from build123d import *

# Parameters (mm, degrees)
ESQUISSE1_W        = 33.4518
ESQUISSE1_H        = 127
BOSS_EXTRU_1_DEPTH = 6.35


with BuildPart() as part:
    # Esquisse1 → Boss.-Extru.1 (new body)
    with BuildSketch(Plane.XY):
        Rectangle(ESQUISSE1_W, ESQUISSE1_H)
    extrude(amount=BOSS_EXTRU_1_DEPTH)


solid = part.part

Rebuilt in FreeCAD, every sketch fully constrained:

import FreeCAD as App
import Part
import Sketcher
Q = App.Units.Quantity


def add_polygon(sketch, points):
    """Adds a closed chain of lines whose ends are joined by coincident constraints."""
    first, n = sketch.GeometryCount, len(points)
    for a, b in zip(points, points[1:] + points[:1]):
        sketch.addGeometry(Part.LineSegment(App.Vector(*a, 0), App.Vector(*b, 0)), False)
    for i in range(n):
        sketch.addConstraint(Sketcher.Constraint("Coincident", first + i, 2, first + (i + 1) % n, 1))

doc = App.newDocument("Part")
params = doc.addObject("Spreadsheet::Sheet", "Params")
for row, (alias, value) in enumerate([
    ("sketch1_height", "5 in"),
    ("sketch1_width", "1.317 in"),
    ("pad1_length", "0.25 in"),
], start=1):
    params.set(f"A{row}", alias)
    params.set(f"B{row}", "=" + value)
    params.setAlias(f"B{row}", alias)

body = doc.addObject("PartDesign::Body", "Body")

# Sketch on XY plane
sketch1 = body.newObject("Sketcher::SketchObject", "Sketch")
sketch1.AttachmentSupport = (doc.getObject("XY_Plane"), [""])
sketch1.MapMode = "FlatFace"
add_polygon(sketch1, [(-17, 64), (-17, -64), (17, -64), (17, 64)])  # lines 0-3
sketch1.addConstraint([
    Sketcher.Constraint("Vertical", 0),
    Sketcher.Constraint("Horizontal", 1),
    Sketcher.Constraint("Vertical", 2),
    Sketcher.Constraint("Horizontal", 3),
    Sketcher.Constraint("Symmetric", 0, 2, 2, 2, -1, 1),
    Sketcher.Constraint("DistanceY", 0, 2, 0, 1, Q("5 in")),
    Sketcher.Constraint("DistanceX", 1, 1, 1, 2, Q("1.317 in")),
])
sketch1.setExpression("Constraints[9]", "Params.sketch1_height")
sketch1.setExpression("Constraints[10]", "Params.sketch1_width")
pad1 = body.newObject("PartDesign::Pad", "Pad")
pad1.Profile = sketch1
pad1.setExpression("Length", "Params.pad1_length")

doc.recompute()
